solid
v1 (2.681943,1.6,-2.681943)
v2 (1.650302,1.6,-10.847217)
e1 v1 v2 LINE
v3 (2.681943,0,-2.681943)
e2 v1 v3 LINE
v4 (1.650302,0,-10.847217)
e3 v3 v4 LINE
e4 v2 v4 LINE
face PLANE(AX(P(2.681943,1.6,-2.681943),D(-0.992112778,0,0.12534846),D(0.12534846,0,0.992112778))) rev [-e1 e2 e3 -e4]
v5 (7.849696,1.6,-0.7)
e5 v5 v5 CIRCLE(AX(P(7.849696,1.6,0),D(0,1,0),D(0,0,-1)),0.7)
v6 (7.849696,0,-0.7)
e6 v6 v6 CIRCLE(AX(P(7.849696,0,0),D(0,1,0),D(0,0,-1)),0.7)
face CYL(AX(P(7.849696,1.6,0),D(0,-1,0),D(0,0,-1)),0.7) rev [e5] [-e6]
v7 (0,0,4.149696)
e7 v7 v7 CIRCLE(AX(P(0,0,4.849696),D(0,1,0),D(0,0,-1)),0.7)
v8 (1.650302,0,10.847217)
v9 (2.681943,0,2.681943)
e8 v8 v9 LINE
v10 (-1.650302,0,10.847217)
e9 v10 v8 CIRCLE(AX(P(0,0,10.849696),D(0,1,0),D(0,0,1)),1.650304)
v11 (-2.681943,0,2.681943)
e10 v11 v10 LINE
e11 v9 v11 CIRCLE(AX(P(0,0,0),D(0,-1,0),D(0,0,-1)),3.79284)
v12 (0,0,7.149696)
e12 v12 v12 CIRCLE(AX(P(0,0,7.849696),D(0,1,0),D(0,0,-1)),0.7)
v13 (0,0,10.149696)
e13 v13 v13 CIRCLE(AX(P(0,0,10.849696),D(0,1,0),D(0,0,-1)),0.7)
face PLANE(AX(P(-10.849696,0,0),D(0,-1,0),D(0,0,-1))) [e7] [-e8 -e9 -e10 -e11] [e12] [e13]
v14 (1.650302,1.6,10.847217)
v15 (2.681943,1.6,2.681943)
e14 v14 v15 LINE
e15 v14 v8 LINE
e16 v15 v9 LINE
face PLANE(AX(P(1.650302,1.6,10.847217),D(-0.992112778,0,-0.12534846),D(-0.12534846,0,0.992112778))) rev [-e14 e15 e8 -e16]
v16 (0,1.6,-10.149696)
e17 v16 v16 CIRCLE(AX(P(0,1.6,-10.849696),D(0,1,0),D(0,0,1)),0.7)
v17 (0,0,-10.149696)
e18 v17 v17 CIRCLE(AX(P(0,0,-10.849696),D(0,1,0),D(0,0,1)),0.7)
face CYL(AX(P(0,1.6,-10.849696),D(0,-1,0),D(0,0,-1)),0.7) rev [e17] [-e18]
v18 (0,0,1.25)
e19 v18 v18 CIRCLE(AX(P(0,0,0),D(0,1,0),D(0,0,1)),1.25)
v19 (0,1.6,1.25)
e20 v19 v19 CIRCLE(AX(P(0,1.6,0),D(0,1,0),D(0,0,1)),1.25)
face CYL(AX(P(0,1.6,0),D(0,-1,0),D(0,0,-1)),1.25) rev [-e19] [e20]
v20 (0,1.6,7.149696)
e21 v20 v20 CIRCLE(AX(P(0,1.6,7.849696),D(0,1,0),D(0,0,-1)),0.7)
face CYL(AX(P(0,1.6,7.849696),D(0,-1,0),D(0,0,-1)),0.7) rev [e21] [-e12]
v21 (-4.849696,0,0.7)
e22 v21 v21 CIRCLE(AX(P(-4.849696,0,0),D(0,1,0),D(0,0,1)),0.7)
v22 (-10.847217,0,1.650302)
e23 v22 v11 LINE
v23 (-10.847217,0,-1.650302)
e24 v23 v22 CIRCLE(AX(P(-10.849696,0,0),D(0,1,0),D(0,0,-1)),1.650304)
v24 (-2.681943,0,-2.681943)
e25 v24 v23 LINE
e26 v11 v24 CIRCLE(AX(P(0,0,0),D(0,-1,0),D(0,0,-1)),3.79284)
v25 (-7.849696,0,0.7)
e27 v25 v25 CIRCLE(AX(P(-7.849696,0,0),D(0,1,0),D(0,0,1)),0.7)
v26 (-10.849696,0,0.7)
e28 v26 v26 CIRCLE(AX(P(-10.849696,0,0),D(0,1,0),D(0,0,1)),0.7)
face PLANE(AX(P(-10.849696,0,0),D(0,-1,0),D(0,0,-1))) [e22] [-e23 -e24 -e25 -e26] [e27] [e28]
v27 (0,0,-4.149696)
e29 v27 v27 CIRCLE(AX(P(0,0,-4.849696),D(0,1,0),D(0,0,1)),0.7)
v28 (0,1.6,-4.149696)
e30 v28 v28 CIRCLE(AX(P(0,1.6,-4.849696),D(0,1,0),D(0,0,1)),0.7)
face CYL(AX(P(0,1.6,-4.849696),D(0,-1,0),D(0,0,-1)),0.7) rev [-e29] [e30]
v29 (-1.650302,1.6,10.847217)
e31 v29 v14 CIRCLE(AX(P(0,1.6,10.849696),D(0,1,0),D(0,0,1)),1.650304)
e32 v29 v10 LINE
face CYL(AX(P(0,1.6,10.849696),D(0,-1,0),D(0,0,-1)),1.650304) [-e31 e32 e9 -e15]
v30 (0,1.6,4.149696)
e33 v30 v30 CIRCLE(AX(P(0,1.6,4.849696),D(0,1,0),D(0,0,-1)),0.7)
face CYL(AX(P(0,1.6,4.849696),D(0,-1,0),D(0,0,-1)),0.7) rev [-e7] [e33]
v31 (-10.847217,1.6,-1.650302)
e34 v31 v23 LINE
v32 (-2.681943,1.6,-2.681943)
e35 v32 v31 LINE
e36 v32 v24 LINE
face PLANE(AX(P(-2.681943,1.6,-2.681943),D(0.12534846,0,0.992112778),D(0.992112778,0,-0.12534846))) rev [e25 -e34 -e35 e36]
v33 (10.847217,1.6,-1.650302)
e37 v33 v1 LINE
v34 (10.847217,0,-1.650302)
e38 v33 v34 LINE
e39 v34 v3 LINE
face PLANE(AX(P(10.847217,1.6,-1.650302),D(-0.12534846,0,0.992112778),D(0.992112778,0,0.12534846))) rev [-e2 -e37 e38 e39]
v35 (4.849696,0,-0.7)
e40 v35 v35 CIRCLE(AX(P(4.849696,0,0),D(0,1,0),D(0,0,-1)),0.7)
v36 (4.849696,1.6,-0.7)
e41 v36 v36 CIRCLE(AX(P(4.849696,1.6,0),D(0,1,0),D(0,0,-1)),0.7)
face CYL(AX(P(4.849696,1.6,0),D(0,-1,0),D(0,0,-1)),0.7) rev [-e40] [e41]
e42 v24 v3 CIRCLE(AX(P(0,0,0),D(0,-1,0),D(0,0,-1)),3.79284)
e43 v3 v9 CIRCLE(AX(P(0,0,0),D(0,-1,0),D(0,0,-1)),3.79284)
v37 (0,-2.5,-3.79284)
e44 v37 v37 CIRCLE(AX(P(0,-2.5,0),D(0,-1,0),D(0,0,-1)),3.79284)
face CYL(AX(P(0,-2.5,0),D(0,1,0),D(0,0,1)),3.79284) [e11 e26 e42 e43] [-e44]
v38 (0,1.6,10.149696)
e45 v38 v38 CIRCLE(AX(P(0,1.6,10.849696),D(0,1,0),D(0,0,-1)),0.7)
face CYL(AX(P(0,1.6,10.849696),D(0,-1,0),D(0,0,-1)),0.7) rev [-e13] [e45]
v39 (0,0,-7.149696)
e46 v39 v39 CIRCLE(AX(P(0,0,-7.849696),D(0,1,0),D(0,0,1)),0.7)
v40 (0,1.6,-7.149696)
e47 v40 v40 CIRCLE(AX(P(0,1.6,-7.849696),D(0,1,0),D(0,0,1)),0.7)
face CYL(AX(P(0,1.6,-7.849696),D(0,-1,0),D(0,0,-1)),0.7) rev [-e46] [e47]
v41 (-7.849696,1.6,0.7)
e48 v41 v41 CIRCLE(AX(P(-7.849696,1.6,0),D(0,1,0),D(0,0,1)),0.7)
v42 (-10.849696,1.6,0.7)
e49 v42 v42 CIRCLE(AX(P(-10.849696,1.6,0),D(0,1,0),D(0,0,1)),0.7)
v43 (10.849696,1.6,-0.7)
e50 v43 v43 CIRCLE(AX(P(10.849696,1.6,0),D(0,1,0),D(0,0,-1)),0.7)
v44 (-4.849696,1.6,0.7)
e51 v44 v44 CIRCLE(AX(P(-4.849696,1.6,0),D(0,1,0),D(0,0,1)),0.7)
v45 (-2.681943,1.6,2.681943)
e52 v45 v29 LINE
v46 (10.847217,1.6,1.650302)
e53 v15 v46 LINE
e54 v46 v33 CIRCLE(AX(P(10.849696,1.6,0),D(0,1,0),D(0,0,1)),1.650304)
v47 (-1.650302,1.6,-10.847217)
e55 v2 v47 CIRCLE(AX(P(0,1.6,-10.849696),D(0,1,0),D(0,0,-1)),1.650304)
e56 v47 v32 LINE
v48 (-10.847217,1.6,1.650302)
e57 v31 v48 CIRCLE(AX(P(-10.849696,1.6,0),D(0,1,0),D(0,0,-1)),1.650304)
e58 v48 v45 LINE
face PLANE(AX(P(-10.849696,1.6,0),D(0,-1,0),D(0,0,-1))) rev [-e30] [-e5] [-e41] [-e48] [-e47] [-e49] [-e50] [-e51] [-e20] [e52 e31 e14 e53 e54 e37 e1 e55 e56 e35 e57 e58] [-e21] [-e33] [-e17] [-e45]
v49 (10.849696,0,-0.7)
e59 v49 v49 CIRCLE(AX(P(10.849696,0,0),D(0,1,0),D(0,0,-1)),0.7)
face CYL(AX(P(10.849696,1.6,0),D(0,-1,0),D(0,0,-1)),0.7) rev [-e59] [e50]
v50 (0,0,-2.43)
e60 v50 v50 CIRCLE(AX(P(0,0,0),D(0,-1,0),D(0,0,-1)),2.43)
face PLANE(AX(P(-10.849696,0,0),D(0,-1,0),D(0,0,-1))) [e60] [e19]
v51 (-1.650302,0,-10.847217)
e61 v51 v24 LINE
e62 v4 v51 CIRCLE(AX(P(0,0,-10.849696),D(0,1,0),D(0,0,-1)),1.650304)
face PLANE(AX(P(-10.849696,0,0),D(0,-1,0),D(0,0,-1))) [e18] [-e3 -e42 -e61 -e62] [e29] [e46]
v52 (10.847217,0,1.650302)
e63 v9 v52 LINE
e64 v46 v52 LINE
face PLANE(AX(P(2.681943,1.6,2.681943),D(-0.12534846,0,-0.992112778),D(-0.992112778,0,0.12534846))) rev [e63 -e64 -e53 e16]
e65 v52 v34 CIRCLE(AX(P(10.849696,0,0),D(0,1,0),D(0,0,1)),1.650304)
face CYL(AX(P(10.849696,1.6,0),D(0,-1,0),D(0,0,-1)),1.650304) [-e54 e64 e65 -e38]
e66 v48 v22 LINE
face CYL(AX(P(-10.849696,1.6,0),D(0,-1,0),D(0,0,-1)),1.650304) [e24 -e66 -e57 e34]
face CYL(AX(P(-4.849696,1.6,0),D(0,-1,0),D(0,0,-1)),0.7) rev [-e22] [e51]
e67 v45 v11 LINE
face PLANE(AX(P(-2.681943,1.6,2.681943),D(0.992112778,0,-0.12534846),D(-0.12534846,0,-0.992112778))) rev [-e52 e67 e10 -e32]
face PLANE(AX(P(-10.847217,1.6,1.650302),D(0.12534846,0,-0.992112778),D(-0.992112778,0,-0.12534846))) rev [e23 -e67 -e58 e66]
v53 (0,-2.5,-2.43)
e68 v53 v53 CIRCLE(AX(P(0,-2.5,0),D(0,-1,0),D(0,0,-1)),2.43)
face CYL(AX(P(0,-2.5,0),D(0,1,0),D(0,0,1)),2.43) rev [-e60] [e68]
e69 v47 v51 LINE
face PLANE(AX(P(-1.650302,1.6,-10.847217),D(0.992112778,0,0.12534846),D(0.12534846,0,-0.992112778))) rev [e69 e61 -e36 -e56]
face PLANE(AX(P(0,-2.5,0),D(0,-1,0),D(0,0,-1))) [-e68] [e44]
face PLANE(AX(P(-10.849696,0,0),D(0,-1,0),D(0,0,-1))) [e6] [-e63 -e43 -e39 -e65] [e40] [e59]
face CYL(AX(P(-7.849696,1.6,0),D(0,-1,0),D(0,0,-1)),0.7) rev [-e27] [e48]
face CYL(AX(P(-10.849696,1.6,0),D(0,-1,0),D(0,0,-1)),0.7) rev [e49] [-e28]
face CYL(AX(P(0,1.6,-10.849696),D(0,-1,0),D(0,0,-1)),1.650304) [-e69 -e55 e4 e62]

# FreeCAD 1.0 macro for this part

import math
import FreeCAD as App
import Part
import Sketcher
from FreeCAD import Vector

doc = App.newDocument("Part")
body = doc.addObject("PartDesign::Body", "Body")

sketch1 = body.newObject("Sketcher::SketchObject", "Sketch")
sketch1.AttachmentSupport = (doc.getObject("XZ_Plane"), [""])
sketch1.MapMode = "FlatFace"
sketch1.addGeometry([
    Part.LineSegment(Vector(-10.847217, 1.650302, 0), Vector(-2.681943, 2.681943, 0)),
    Part.LineSegment(Vector(-2.681943, 2.681943, 0), Vector(-1.650302, 10.847217, 0)),
    Part.ArcOfCircle(Part.Circle(Vector(0, 10.849696, 0), Vector(0, 0, 1), 1.650304), math.radians(-0.086069), math.radians(180.086069)),
    Part.LineSegment(Vector(1.650302, 10.847217, 0), Vector(2.681943, 2.681943, 0)),
    Part.LineSegment(Vector(2.681943, 2.681943, 0), Vector(10.847217, 1.650302, 0)),
    Part.ArcOfCircle(Part.Circle(Vector(10.849696, 0, 0), Vector(0, 0, 1), 1.650304), math.radians(-90.086069), math.radians(90.086069)),
    Part.LineSegment(Vector(10.847217, -1.650302, 0), Vector(2.681943, -2.681943, 0)),
    Part.LineSegment(Vector(2.681943, -2.681943, 0), Vector(1.650302, -10.847217, 0)),
    Part.ArcOfCircle(Part.Circle(Vector(0, -10.849696, 0), Vector(0, 0, 1), 1.650304), math.radians(179.913931), math.radians(360.086069)),
    Part.LineSegment(Vector(-1.650302, -10.847217, 0), Vector(-2.681943, -2.681943, 0)),
    Part.LineSegment(Vector(-2.681943, -2.681943, 0), Vector(-10.847217, -1.650302, 0)),
    Part.ArcOfCircle(Part.Circle(Vector(-10.849696, 0, 0), Vector(0, 0, 1), 1.650304), math.radians(89.913931), math.radians(270.086069)),
    Part.Circle(Vector(0, 10.849696, 0), Vector(0, 0, 1), 0.7),
    Part.Circle(Vector(0, 7.849696, 0), Vector(0, 0, 1), 0.7),
    Part.Circle(Vector(0, 4.849696, 0), Vector(0, 0, 1), 0.7),
    Part.Circle(Vector(-10.849696, 0, 0), Vector(0, 0, 1), 0.7),
    Part.Circle(Vector(-7.849696, 0, 0), Vector(0, 0, 1), 0.7),
    Part.Circle(Vector(-4.849696, 0, 0), Vector(0, 0, 1), 0.7),
    Part.Circle(Vector(0, 0, 0), Vector(0, 0, 1), 1.25),
    Part.Circle(Vector(4.849696, 0, 0), Vector(0, 0, 1), 0.7),
    Part.Circle(Vector(0, -4.849696, 0), Vector(0, 0, 1), 0.7),
    Part.Circle(Vector(7.849696, 0, 0), Vector(0, 0, 1), 0.7),
    Part.Circle(Vector(10.849696, 0, 0), Vector(0, 0, 1), 0.7),
    Part.Circle(Vector(0, -7.849696, 0), Vector(0, 0, 1), 0.7),
    Part.Circle(Vector(0, -10.849696, 0), Vector(0, 0, 1), 0.7),
], False)
sketch1.addConstraint([
    Sketcher.Constraint("Coincident", 0, 2, 1, 1),
    Sketcher.Constraint("Coincident", 1, 2, 2, 2),
    Sketcher.Constraint("Coincident", 2, 1, 3, 1),
    Sketcher.Constraint("Coincident", 3, 2, 4, 1),
    Sketcher.Constraint("Coincident", 4, 2, 5, 2),
    Sketcher.Constraint("Coincident", 5, 1, 6, 1),
    Sketcher.Constraint("Coincident", 6, 2, 7, 1),
    Sketcher.Constraint("Coincident", 7, 2, 8, 2),
    Sketcher.Constraint("Coincident", 8, 1, 9, 1),
    Sketcher.Constraint("Coincident", 9, 2, 10, 1),
    Sketcher.Constraint("Coincident", 10, 2, 11, 2),
    Sketcher.Constraint("Coincident", 11, 1, 0, 1),
    Sketcher.Constraint("Coincident", 18, 3, -1, 1),
    Sketcher.Constraint("Coincident", 12, 3, 2, 3),
    Sketcher.Constraint("Coincident", 15, 3, 11, 3),
    Sketcher.Constraint("Coincident", 22, 3, 5, 3),
    Sketcher.Constraint("Coincident", 24, 3, 8, 3),
    Sketcher.Constraint("Equal", 2, 5),
    Sketcher.Constraint("Equal", 5, 8),
    Sketcher.Constraint("Equal", 8, 11),
    Sketcher.Constraint("Equal", 12, 13),
    Sketcher.Constraint("Equal", 13, 14),
    Sketcher.Constraint("Equal", 14, 15),
    Sketcher.Constraint("Equal", 15, 16),
    Sketcher.Constraint("Equal", 16, 17),
    Sketcher.Constraint("Equal", 17, 19),
    Sketcher.Constraint("Equal", 19, 20),
    Sketcher.Constraint("Equal", 20, 21),
    Sketcher.Constraint("Equal", 21, 22),
    Sketcher.Constraint("Equal", 22, 23),
    Sketcher.Constraint("Equal", 23, 24),
    Sketcher.Constraint("Symmetric", 2, 3, 8, 3, -1, 1),
    Sketcher.Constraint("Symmetric", 5, 3, 11, 3, -1, 1),
    Sketcher.Constraint("Symmetric", 17, 3, 19, 3, -1, 1),
    Sketcher.Constraint("Symmetric", 14, 3, 20, 3, -1, 1),
    Sketcher.Constraint("Symmetric", 16, 3, 21, 3, -1, 1),
    Sketcher.Constraint("Symmetric", 13, 3, 23, 3, -1, 1),
    Sketcher.Constraint("Symmetric", 0, 2, 6, 2, -1, 1),
    Sketcher.Constraint("Symmetric", 3, 2, 9, 2, -1, 1),
    Sketcher.Constraint("Symmetric", 1, 2, 2, 1, -2),
    Sketcher.Constraint("Symmetric", 0, 2, 3, 2, -2),
    Sketcher.Constraint("Symmetric", 5, 1, 10, 2, -2),
    Sketcher.Constraint("PointOnObject", 13, 3, -2),
    Sketcher.Constraint("PointOnObject", 14, 3, -2),
    Sketcher.Constraint("PointOnObject", 16, 3, -1),
    Sketcher.Constraint("PointOnObject", 17, 3, -1),
    Sketcher.Constraint("Perpendicular", 0, 3),
    Sketcher.Constraint("Perpendicular", 1, 4),
    Sketcher.Constraint("Perpendicular", 3, 6),
    Sketcher.Constraint("Perpendicular", 4, 7),
    Sketcher.Constraint("Perpendicular", 6, 9),
    Sketcher.Constraint("Equal", 0, 1),
    Sketcher.Constraint("Diameter", 12, 1.4),
    Sketcher.Constraint("Diameter", 18, 2.5),
    Sketcher.Constraint("DistanceY", 13, 3, 2, 3, 3.0),
    Sketcher.Constraint("DistanceY", 14, 3, 13, 3, 3.0),
    Sketcher.Constraint("DistanceX", 11, 3, 16, 3, 3.0),
    Sketcher.Constraint("DistanceX", 16, 3, 17, 3, 3.0),
    Sketcher.Constraint("Radius", 2, 1.650304),
    Sketcher.Constraint("DistanceY", 1, 2, 2, 3, 0.002479),
    Sketcher.Constraint("DistanceX", 0, 2, 1, 2, 1.031641),
    Sketcher.Constraint("DistanceX", 4, 2, 5, 3, 0.002479),
    Sketcher.Constraint("Distance", 0, 8.230187),
])
pad1 = body.newObject("PartDesign::Pad", "Pad")
pad1.Profile = sketch1
pad1.Length = 1.6
pad1.Reversed = True

sketch2 = body.newObject("Sketcher::SketchObject", "Sketch001")
sketch2.AttachmentSupport = (doc.getObject("XZ_Plane"), [""])
sketch2.MapMode = "FlatFace"
sketch2.addGeometry([
    Part.Circle(Vector(0, 0, 0), Vector(0, 0, 1), 3.79284),
    Part.Circle(Vector(0, 0, 0), Vector(0, 0, 1), 2.43),
], False)
sketch2.addConstraint([
    Sketcher.Constraint("Coincident", 0, 3, -1, 1),
    Sketcher.Constraint("Coincident", 1, 3, -1, 1),
    Sketcher.Constraint("Diameter", 1, 4.86),
    Sketcher.Constraint("Diameter", 0, 7.585681),
])
pad2 = body.newObject("PartDesign::Pad", "Pad001")
pad2.Profile = sketch2
pad2.Length = 2.5

doc.recompute()
